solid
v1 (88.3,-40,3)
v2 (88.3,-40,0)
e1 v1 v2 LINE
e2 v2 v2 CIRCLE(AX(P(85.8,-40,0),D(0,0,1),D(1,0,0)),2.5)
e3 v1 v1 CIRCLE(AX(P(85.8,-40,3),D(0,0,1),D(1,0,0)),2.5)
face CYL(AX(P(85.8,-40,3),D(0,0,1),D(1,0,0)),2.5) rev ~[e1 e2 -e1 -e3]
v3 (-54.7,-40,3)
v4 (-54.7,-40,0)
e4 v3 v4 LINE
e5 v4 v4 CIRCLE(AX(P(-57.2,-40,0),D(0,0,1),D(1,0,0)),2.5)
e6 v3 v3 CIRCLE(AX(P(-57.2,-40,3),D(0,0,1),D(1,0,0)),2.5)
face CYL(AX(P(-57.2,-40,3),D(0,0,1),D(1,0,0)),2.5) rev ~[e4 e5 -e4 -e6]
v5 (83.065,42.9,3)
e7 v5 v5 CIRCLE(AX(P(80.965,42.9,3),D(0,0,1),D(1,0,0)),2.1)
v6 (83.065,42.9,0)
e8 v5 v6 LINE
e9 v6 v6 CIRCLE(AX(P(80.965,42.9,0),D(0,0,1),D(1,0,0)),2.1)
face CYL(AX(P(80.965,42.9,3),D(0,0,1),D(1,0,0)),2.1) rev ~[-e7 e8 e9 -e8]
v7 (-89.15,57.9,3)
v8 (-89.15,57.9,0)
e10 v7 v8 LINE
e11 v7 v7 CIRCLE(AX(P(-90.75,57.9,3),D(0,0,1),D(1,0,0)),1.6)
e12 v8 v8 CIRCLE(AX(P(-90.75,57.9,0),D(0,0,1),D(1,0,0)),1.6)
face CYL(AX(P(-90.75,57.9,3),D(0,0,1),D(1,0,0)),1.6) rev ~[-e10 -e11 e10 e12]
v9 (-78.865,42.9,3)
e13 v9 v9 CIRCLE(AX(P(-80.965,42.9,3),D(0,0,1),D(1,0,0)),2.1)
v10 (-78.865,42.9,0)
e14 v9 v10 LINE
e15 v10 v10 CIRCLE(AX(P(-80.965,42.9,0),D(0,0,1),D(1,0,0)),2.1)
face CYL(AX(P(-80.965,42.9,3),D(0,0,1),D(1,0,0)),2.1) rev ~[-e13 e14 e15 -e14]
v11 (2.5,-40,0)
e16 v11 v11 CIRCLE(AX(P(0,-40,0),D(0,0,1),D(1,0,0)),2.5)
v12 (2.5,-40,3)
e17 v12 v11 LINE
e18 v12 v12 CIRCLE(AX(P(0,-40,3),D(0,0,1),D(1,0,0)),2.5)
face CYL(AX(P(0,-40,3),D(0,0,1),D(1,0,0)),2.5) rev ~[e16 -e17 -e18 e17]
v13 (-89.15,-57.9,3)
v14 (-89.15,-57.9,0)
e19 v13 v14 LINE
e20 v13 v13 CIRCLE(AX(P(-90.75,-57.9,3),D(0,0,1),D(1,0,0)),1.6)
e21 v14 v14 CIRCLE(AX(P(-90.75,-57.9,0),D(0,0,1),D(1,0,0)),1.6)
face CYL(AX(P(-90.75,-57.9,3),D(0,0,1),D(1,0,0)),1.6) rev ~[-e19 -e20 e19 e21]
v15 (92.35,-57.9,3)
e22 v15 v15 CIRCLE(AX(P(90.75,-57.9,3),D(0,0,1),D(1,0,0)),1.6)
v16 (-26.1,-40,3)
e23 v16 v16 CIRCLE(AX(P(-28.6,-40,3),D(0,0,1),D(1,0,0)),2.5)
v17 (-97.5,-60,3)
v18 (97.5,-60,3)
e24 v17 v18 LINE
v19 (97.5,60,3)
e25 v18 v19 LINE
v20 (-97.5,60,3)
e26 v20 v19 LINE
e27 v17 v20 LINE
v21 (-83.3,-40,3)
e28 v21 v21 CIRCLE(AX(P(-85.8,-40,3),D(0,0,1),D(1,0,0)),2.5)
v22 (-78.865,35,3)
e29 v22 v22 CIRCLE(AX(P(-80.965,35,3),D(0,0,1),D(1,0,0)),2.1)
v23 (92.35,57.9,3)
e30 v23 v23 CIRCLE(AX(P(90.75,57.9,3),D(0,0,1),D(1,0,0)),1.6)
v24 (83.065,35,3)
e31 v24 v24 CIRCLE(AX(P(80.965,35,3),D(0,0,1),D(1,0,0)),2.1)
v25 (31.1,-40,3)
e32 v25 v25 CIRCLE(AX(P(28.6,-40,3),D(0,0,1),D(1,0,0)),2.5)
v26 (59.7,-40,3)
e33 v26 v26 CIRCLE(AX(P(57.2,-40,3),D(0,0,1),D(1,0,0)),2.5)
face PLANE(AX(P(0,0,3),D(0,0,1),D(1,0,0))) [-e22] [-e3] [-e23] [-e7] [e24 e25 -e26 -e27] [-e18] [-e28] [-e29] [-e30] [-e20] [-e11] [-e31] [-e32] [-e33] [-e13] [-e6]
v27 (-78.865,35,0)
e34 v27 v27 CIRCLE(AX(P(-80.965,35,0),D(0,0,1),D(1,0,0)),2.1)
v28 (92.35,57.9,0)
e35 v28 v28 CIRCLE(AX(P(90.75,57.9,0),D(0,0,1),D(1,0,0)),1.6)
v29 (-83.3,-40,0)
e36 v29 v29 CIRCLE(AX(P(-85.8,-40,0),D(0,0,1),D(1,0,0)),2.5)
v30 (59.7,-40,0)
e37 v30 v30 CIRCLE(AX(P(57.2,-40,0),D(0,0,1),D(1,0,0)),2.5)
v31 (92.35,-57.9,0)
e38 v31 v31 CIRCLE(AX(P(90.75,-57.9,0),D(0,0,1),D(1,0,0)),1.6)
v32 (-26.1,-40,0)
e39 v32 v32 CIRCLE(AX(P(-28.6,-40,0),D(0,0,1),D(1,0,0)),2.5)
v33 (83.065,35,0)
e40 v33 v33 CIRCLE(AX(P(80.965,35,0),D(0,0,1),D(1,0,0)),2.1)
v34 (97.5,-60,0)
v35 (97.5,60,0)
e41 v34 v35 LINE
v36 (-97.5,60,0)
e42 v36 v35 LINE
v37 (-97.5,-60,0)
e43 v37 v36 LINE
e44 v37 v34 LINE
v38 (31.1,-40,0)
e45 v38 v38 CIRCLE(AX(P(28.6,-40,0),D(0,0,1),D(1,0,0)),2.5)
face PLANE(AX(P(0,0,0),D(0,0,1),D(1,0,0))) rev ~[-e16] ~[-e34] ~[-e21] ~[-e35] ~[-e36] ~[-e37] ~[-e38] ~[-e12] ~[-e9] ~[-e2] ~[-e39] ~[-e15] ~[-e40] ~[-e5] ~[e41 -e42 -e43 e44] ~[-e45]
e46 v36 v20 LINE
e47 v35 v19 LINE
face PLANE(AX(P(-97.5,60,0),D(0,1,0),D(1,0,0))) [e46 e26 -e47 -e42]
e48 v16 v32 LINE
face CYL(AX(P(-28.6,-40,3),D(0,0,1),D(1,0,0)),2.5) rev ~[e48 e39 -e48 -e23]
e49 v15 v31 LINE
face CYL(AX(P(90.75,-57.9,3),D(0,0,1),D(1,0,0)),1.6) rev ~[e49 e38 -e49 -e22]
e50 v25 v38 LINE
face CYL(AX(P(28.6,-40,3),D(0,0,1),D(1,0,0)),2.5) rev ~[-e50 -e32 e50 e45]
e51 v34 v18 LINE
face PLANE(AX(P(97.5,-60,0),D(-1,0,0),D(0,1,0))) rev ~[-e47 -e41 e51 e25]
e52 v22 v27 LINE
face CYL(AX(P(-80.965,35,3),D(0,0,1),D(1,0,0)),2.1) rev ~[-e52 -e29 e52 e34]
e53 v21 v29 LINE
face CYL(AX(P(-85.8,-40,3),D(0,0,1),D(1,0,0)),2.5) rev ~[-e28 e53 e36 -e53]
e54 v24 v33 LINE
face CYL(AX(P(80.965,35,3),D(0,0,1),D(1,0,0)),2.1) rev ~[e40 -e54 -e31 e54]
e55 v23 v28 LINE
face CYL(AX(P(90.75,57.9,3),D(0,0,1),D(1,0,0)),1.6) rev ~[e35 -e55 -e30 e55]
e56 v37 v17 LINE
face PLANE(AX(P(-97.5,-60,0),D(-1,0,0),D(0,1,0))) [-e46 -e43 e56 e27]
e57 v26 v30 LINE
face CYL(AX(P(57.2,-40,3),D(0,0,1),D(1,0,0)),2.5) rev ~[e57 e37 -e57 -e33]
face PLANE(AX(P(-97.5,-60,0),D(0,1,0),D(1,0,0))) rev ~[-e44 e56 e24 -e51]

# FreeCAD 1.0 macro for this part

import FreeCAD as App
import Part
import Sketcher
from FreeCAD import Vector
Q = App.Units.Quantity

doc = App.newDocument("Part")
body = doc.addObject("PartDesign::Body", "Body")

sketch1 = body.newObject("Sketcher::SketchObject", "Sketch")
sketch1.AttachmentSupport = (doc.getObject("XY_Plane"), [""])
sketch1.MapMode = "FlatFace"
sketch1.addGeometry([
    Part.LineSegment(Vector(-98, 60, 0), Vector(-98, -60, 0)),
    Part.LineSegment(Vector(-98, -60, 0), Vector(98, -60, 0)),
    Part.LineSegment(Vector(98, -60, 0), Vector(98, 60, 0)),
    Part.LineSegment(Vector(98, 60, 0), Vector(-98, 60, 0)),
], False)
sketch1.addConstraint([
    Sketcher.Constraint("Coincident", 0, 2, 1, 1),
    Sketcher.Constraint("Coincident", 1, 2, 2, 1),
    Sketcher.Constraint("Coincident", 2, 2, 3, 1),
    Sketcher.Constraint("Coincident", 3, 2, 0, 1),
    Sketcher.Constraint("Vertical", 0),
    Sketcher.Constraint("Horizontal", 1),
    Sketcher.Constraint("Vertical", 2),
    Sketcher.Constraint("Horizontal", 3),
    Sketcher.Constraint("Symmetric", 0, 2, 2, 2, -1, 1),
    Sketcher.Constraint("DistanceX", 1, 1, 1, 2, Q("195 mm")),
    Sketcher.Constraint("DistanceY", 0, 2, 0, 1, Q("120 mm")),
])
pad1 = body.newObject("PartDesign::Pad", "Pad")
pad1.Profile = sketch1
pad1.Length = 3

sketch2 = body.newObject("Sketcher::SketchObject", "Sketch001")
sketch2.AttachmentSupport = (doc.getObject("XY_Plane"), [""])
sketch2.MapMode = "FlatFace"
sketch2.AttachmentOffset = App.Placement(Vector(0, 0, 3), App.Rotation())
sketch2.addGeometry([
    Part.Circle(Vector(-90.8, 57.9, 0), Vector(0, 0, 1), 1.6),
    Part.Circle(Vector(90.8, 57.9, 0), Vector(0, 0, 1), 1.6),
    Part.Circle(Vector(-90.8, -57.9, 0), Vector(0, 0, 1), 1.6),
    Part.Circle(Vector(90.8, -57.9, 0), Vector(0, 0, 1), 1.6),
], False)
sketch2.addConstraint([
    Sketcher.Constraint("Equal", 0, 1),
    Sketcher.Constraint("Equal", 1, 2),
    Sketcher.Constraint("Equal", 2, 3),
    Sketcher.Constraint("Symmetric", 1, 3, 2, 3, -1, 1),
    Sketcher.Constraint("Symmetric", 0, 3, 3, 3, -1, 1),
    Sketcher.Constraint("Symmetric", 0, 3, 1, 3, -2),
    Sketcher.Constraint("Diameter", 0, Q("3.2 mm")),
    Sketcher.Constraint("DistanceY", -1, 1, 0, 3, Q("57.9 mm")),
    Sketcher.Constraint("DistanceX", 0, 3, 1, 3, Q("181.5 mm")),
])
pocket1 = body.newObject("PartDesign::Pocket", "Pocket")
pocket1.Profile = sketch2
pocket1.Length = 5

sketch3 = body.newObject("Sketcher::SketchObject", "Sketch002")
sketch3.AttachmentSupport = (doc.getObject("XY_Plane"), [""])
sketch3.MapMode = "FlatFace"
sketch3.AttachmentOffset = App.Placement(Vector(0, 0, 3), App.Rotation())
sketch3.addGeometry([
    Part.Circle(Vector(-57.2, -40, 0), Vector(0, 0, 1), 2.5),
    Part.Circle(Vector(-28.6, -40, 0), Vector(0, 0, 1), 2.5),
    Part.Circle(Vector(0, -40, 0), Vector(0, 0, 1), 2.5),
    Part.Circle(Vector(28.6, -40, 0), Vector(0, 0, 1), 2.5),
    Part.Circle(Vector(57.2, -40, 0), Vector(0, 0, 1), 2.5),
    Part.Circle(Vector(-81, 42.9, 0), Vector(0, 0, 1), 2.1),
    Part.Circle(Vector(-81, 35, 0), Vector(0, 0, 1), 2.1),
    Part.Circle(Vector(81, 42.9, 0), Vector(0, 0, 1), 2.1),
    Part.Circle(Vector(81, 35, 0), Vector(0, 0, 1), 2.1),
    Part.Circle(Vector(-85.8, -40, 0), Vector(0, 0, 1), 2.5),
    Part.Circle(Vector(85.8, -40, 0), Vector(0, 0, 1), 2.5),
], False)
sketch3.addConstraint([
    Sketcher.Constraint("Equal", 0, 1),
    Sketcher.Constraint("Equal", 1, 2),
    Sketcher.Constraint("Equal", 2, 3),
    Sketcher.Constraint("Equal", 3, 4),
    Sketcher.Constraint("Equal", 5, 6),
    Sketcher.Constraint("Equal", 6, 7),
    Sketcher.Constraint("Equal", 7, 8),
    Sketcher.Constraint("Equal", 4, 9),
    Sketcher.Constraint("Equal", 9, 10),
    Sketcher.Constraint("Symmetric", 1, 3, 3, 3, -2),
    Sketcher.Constraint("Symmetric", 0, 3, 4, 3, -2),
    Sketcher.Constraint("Symmetric", 5, 3, 7, 3, -2),
    Sketcher.Constraint("Symmetric", 6, 3, 8, 3, -2),
    Sketcher.Constraint("Symmetric", 9, 3, 10, 3, -2),
    Sketcher.Constraint("PointOnObject", 2, 3, -2),
    Sketcher.Constraint("Horizontal", 0, 3, 1, 3),
    Sketcher.Constraint("Horizontal", 1, 3, 2, 3),
    Sketcher.Constraint("Horizontal", 4, 3, 9, 3),
    Sketcher.Constraint("Vertical", 5, 3, 6, 3),
    Sketcher.Constraint("Diameter", 0, Q("5 mm")),
    Sketcher.Constraint("Diameter", 5, Q("4.2 mm")),
    Sketcher.Constraint("DistanceY", 0, 3, -1, 1, Q("40 mm")),
    Sketcher.Constraint("DistanceY", -1, 1, 6, 3, Q("35 mm")),
    Sketcher.Constraint("DistanceX", 0, 3, -1, 1, Q("57.2 mm")),
    Sketcher.Constraint("DistanceX", 1, 3, -1, 1, Q("28.6 mm")),
    Sketcher.Constraint("DistanceY", -1, 1, 5, 3, Q("42.9 mm")),
    Sketcher.Constraint("DistanceX", 9, 3, -1, 1, Q("85.8 mm")),
    Sketcher.Constraint("DistanceX", 5, 3, -1, 1, Q("80.965 mm")),
])
pocket2 = body.newObject("PartDesign::Pocket", "Pocket001")
pocket2.Profile = sketch3
pocket2.Length = 5

doc.recompute()
